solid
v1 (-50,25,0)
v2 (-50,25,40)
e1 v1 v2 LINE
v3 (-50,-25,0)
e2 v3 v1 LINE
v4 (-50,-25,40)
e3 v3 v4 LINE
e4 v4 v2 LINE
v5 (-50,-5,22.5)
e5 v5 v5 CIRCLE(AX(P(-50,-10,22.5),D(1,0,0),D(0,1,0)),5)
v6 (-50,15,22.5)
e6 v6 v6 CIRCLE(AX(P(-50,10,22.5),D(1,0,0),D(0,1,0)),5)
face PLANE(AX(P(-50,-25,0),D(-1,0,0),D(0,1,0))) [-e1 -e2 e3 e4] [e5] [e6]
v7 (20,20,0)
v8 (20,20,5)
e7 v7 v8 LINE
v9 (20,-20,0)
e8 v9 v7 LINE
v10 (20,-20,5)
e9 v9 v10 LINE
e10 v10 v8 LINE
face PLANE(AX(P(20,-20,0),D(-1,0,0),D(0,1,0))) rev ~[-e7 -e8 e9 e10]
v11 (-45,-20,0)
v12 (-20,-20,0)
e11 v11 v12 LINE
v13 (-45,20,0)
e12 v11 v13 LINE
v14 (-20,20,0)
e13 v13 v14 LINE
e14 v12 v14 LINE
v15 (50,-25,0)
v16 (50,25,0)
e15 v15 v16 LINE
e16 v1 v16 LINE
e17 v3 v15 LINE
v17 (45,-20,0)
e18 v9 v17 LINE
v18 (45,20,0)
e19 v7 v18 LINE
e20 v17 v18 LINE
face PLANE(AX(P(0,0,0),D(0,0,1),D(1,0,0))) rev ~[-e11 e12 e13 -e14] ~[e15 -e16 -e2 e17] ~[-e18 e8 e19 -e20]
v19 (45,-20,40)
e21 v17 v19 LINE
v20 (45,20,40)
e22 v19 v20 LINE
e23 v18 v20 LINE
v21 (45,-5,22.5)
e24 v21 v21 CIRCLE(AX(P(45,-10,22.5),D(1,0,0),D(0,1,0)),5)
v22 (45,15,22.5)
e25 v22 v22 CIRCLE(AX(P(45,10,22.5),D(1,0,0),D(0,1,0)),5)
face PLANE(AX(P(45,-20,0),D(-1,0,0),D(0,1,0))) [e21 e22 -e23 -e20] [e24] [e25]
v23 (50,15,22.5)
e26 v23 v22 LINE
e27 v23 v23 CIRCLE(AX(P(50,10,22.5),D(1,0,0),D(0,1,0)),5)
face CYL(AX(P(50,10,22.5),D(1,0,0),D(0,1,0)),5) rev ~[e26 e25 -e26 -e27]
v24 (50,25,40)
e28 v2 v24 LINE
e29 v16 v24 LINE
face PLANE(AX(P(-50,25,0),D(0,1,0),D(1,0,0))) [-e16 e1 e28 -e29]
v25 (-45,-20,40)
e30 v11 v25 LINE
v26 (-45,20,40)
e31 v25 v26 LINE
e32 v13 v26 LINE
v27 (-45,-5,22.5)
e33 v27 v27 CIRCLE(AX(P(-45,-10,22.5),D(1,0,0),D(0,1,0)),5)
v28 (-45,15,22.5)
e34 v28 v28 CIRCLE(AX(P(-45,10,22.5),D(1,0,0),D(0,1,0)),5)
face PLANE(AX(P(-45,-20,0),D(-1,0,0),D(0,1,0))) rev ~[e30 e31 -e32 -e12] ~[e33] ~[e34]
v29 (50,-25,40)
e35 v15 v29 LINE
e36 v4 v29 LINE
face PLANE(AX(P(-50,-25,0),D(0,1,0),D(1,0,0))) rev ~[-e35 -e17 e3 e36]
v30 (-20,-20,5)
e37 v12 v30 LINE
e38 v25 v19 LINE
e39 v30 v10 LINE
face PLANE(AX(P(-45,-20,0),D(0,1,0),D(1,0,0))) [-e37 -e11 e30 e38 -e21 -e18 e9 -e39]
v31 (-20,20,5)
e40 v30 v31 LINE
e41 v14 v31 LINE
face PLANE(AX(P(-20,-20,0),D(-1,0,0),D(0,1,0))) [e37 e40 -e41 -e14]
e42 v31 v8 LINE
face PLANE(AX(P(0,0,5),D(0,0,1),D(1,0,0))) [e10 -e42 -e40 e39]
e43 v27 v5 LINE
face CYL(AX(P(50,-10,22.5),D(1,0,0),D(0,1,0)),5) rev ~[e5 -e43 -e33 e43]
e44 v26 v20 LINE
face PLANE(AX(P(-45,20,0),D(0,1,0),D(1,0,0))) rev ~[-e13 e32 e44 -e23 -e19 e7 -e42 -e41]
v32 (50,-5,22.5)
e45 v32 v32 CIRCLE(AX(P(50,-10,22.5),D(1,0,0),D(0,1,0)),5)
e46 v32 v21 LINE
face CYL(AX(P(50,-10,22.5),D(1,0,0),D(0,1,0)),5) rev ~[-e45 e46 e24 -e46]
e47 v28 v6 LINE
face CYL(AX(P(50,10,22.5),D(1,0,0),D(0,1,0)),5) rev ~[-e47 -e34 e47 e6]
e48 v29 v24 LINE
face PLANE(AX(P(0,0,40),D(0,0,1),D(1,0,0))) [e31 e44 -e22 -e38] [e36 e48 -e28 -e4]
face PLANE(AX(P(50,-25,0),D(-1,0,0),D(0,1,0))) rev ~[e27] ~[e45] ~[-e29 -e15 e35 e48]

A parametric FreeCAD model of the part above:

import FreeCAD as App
import Part
import Sketcher
from FreeCAD import Vector
Q = App.Units.Quantity

doc = App.newDocument("Part")
body = doc.addObject("PartDesign::Body", "Body")

sketch1 = body.newObject("Sketcher::SketchObject", "Sketch")
sketch1.AttachmentSupport = (doc.getObject("XY_Plane"), [""])
sketch1.MapMode = "FlatFace"
sketch1.addGeometry(Part.LineSegment(Vector(-50, 25, 0), Vector(-50, -25, 0)), False)
sketch1.addGeometry(Part.LineSegment(Vector(-50, -25, 0), Vector(50, -25, 0)), False)
sketch1.addGeometry(Part.LineSegment(Vector(50, -25, 0), Vector(50, 25, 0)), False)
sketch1.addGeometry(Part.LineSegment(Vector(50, 25, 0), Vector(-50, 25, 0)), False)
sketch1.addGeometry(Part.LineSegment(Vector(45, -20, 0), Vector(-45, -20, 0)), False)
sketch1.addGeometry(Part.LineSegment(Vector(-45, -20, 0), Vector(-45, 20, 0)), False)
sketch1.addGeometry(Part.LineSegment(Vector(-45, 20, 0), Vector(45, 20, 0)), False)
sketch1.addGeometry(Part.LineSegment(Vector(45, 20, 0), Vector(45, -20, 0)), False)
sketch1.addConstraint(Sketcher.Constraint("Coincident", 0, 2, 1, 1))
sketch1.addConstraint(Sketcher.Constraint("Coincident", 1, 2, 2, 1))
sketch1.addConstraint(Sketcher.Constraint("Coincident", 2, 2, 3, 1))
sketch1.addConstraint(Sketcher.Constraint("Coincident", 3, 2, 0, 1))
sketch1.addConstraint(Sketcher.Constraint("Coincident", 4, 2, 5, 1))
sketch1.addConstraint(Sketcher.Constraint("Coincident", 5, 2, 6, 1))
sketch1.addConstraint(Sketcher.Constraint("Coincident", 6, 2, 7, 1))
sketch1.addConstraint(Sketcher.Constraint("Coincident", 7, 2, 4, 1))
sketch1.addConstraint(Sketcher.Constraint("Vertical", 0))
sketch1.addConstraint(Sketcher.Constraint("Horizontal", 1))
sketch1.addConstraint(Sketcher.Constraint("Vertical", 2))
sketch1.addConstraint(Sketcher.Constraint("Horizontal", 3))
sketch1.addConstraint(Sketcher.Constraint("Horizontal", 4))
sketch1.addConstraint(Sketcher.Constraint("Vertical", 5))
sketch1.addConstraint(Sketcher.Constraint("Horizontal", 6))
sketch1.addConstraint(Sketcher.Constraint("Vertical", 7))
sketch1.addConstraint(Sketcher.Constraint("Symmetric", 0, 2, 2, 2, -1, 1))
sketch1.addConstraint(Sketcher.Constraint("Symmetric", 4, 2, 6, 2, -1, 1))
sketch1.addConstraint(Sketcher.Constraint("DistanceX", 1, 1, 1, 2, Q("100 mm")))
sketch1.addConstraint(Sketcher.Constraint("DistanceX", 4, 2, 4, 1, Q("90 mm")))
sketch1.addConstraint(Sketcher.Constraint("DistanceY", 0, 2, 0, 1, Q("50 mm")))
sketch1.addConstraint(Sketcher.Constraint("DistanceY", 5, 1, 5, 2, Q("40 mm")))
pad1 = body.newObject("PartDesign::Pad", "Pad")
pad1.Profile = sketch1
pad1.Length = 40

sketch2 = body.newObject("Sketcher::SketchObject", "Sketch001")
sketch2.AttachmentSupport = (doc.getObject("XY_Plane"), [""])
sketch2.MapMode = "FlatFace"
sketch2.addGeometry(Part.LineSegment(Vector(-20, 20, 0), Vector(-20, -20, 0)), False)
sketch2.addGeometry(Part.LineSegment(Vector(-20, -20, 0), Vector(20, -20, 0)), False)
sketch2.addGeometry(Part.LineSegment(Vector(20, -20, 0), Vector(20, 20, 0)), False)
sketch2.addGeometry(Part.LineSegment(Vector(20, 20, 0), Vector(-20, 20, 0)), False)
sketch2.addConstraint(Sketcher.Constraint("Coincident", 0, 2, 1, 1))
sketch2.addConstraint(Sketcher.Constraint("Coincident", 1, 2, 2, 1))
sketch2.addConstraint(Sketcher.Constraint("Coincident", 2, 2, 3, 1))
sketch2.addConstraint(Sketcher.Constraint("Coincident", 3, 2, 0, 1))
sketch2.addConstraint(Sketcher.Constraint("Vertical", 0))
sketch2.addConstraint(Sketcher.Constraint("Horizontal", 1))
sketch2.addConstraint(Sketcher.Constraint("Vertical", 2))
sketch2.addConstraint(Sketcher.Constraint("Horizontal", 3))
sketch2.addConstraint(Sketcher.Constraint("Symmetric", 0, 2, 2, 2, -1, 1))
sketch2.addConstraint(Sketcher.Constraint("Equal", 3, 0))
sketch2.addConstraint(Sketcher.Constraint("DistanceX", 1, 1, 1, 2, Q("40 mm")))
pad2 = body.newObject("PartDesign::Pad", "Pad001")
pad2.Profile = sketch2
pad2.Length = 5

sketch3 = body.newObject("Sketcher::SketchObject", "Sketch002")
sketch3.AttachmentSupport = (doc.getObject("YZ_Plane"), [""])
sketch3.MapMode = "FlatFace"
sketch3.AttachmentOffset = App.Placement(Vector(0, 0, 50), App.Rotation())
sketch3.addGeometry(Part.Circle(Vector(10, 22, 0), Vector(0, 0, 1), 5), False)
sketch3.addGeometry(Part.Circle(Vector(-10, 22, 0), Vector(0, 0, 1), 5), False)
sketch3.addConstraint(Sketcher.Constraint("Equal", 0, 1))
sketch3.addConstraint(Sketcher.Constraint("Symmetric", 0, 3, 1, 3, -2))
sketch3.addConstraint(Sketcher.Constraint("Diameter", 0, Q("10 mm")))
sketch3.addConstraint(Sketcher.Constraint("DistanceX", -1, 1, 0, 3, Q("10 mm")))
sketch3.addConstraint(Sketcher.Constraint("DistanceY", -1, 1, 0, 3, Q("22.5 mm")))
pocket1 = body.newObject("PartDesign::Pocket", "Pocket")
pocket1.Profile = sketch3
pocket1.Type = "ThroughAll"

doc.recompute()
